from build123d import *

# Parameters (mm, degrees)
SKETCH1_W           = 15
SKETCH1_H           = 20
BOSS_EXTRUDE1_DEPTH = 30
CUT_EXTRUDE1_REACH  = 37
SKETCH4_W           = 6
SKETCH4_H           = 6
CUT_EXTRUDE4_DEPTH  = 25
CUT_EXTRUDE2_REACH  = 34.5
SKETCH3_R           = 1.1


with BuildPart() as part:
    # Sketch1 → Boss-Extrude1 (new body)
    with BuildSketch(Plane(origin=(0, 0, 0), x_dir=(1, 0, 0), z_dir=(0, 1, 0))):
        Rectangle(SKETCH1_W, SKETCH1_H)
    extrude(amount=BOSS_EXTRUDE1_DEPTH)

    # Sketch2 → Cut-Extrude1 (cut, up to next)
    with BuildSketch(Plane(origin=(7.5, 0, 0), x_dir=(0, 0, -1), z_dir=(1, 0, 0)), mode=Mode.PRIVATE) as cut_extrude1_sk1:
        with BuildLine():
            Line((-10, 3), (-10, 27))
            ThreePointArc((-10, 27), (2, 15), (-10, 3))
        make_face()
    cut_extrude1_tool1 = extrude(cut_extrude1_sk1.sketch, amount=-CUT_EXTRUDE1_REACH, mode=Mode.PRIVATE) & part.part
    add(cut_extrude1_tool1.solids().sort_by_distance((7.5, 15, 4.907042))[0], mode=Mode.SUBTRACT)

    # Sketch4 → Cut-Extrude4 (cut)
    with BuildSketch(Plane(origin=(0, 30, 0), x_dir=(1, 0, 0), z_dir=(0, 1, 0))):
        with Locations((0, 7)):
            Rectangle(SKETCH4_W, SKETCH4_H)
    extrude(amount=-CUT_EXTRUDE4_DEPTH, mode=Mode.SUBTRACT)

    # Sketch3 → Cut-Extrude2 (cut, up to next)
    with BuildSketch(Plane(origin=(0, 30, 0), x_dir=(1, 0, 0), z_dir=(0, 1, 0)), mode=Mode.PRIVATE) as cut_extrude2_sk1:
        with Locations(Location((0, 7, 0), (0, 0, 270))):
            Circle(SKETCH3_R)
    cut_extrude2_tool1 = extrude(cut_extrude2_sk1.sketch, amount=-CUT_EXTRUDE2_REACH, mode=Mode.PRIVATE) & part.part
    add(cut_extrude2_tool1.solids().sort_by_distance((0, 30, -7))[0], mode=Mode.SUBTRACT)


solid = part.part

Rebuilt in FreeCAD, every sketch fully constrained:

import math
import FreeCAD as App
import Part
import Sketcher
from FreeCAD import Vector
Q = App.Units.Quantity


def add_polygon(sketch, points):
    """Adds a closed chain of lines whose ends are joined by coincident constraints."""
    first, n = sketch.GeometryCount, len(points)
    for a, b in zip(points, points[1:] + points[:1]):
        sketch.addGeometry(Part.LineSegment(App.Vector(*a, 0), App.Vector(*b, 0)), False)
    for i in range(n):
        sketch.addConstraint(Sketcher.Constraint("Coincident", first + i, 2, first + (i + 1) % n, 1))

doc = App.newDocument("Part")
body = doc.addObject("PartDesign::Body", "Body")

# Sketch on XZ plane
sketch1 = doc.addObject("Sketcher::SketchObject", "Sketch")
body.addObject(sketch1)
sketch1.AttachmentSupport = (doc.XZ_Plane, [""])
sketch1.MapMode = "FlatFace"
add_polygon(sketch1, [(-8, -10), (-8, 10), (8, 10), (8, -10)])  # lines 0-3
sketch1.addConstraint([
    Sketcher.Constraint("Vertical", 0),
    Sketcher.Constraint("Horizontal", 1),
    Sketcher.Constraint("Vertical", 2),
    Sketcher.Constraint("Horizontal", 3),
    Sketcher.Constraint("Symmetric", 0, 2, 2, 2, -1, 1),
    Sketcher.Constraint("DistanceX", 1, 1, 1, 2, Q("15 mm")),
    Sketcher.Constraint("DistanceY", 0, 1, 0, 2, Q("20 mm")),
])
pad1 = doc.addObject("PartDesign::Pad", "Pad")
body.addObject(pad1)
pad1.Profile = sketch1
pad1.Length = 30
pad1.Reversed = True

# Sketch on YZ plane
sketch2 = doc.addObject("Sketcher::SketchObject", "Sketch001")
body.addObject(sketch2)
sketch2.AttachmentSupport = (doc.YZ_Plane, [""])
sketch2.MapMode = "FlatFace"
sketch2.AttachmentOffset = App.Placement(Vector(0, 0, 7.5), App.Rotation())
sketch2.addGeometry([
    Part.LineSegment(Vector(27, 10, 0), Vector(3, 10, 0)),
    Part.ArcOfCircle(Part.Circle(Vector(15, 10, 0), Vector(0, 0, 1), 12), math.radians(180), math.radians(360)),
], False)
sketch2.addConstraint([
    Sketcher.Constraint("Coincident", 0, 1, 1, 2),
    Sketcher.Constraint("Coincident", 1, 1, 0, 2),
    Sketcher.Constraint("Horizontal", 0),
    Sketcher.Constraint("Horizontal", 1, 3, 0, 1),
    Sketcher.Constraint("Radius", 1, Q("12 mm")),
    Sketcher.Constraint("DistanceX", -1, 1, 1, 3, Q("15 mm")),
    Sketcher.Constraint("DistanceY", -1, 1, 1, 3, Q("10 mm")),
])
pocket1 = doc.addObject("PartDesign::Pocket", "Pocket")
body.addObject(pocket1)
pocket1.Profile = sketch2
pocket1.Type = "UpToFirst"

# Sketch on XZ plane
sketch3 = doc.addObject("Sketcher::SketchObject", "Sketch002")
body.addObject(sketch3)
sketch3.AttachmentSupport = (doc.XZ_Plane, [""])
sketch3.MapMode = "FlatFace"
sketch3.AttachmentOffset = App.Placement(Vector(0, 0, -30), App.Rotation())
add_polygon(sketch3, [(-3, -10), (-3, -4), (3, -4), (3, -10)])  # lines 0-3
sketch3.addConstraint([
    Sketcher.Constraint("Vertical", 0),
    Sketcher.Constraint("Horizontal", 1),
    Sketcher.Constraint("Vertical", 2),
    Sketcher.Constraint("Horizontal", 3),
    Sketcher.Constraint("Equal", 3, 0),
    Sketcher.Constraint("DistanceX", 1, 1, 1, 2, Q("6 mm")),
    Sketcher.Constraint("DistanceX", 0, 2, -1, 1, Q("3 mm")),
    Sketcher.Constraint("DistanceY", 0, 2, -1, 1, Q("4 mm")),
])
pocket2 = doc.addObject("PartDesign::Pocket", "Pocket001")
body.addObject(pocket2)
pocket2.Profile = sketch3
pocket2.Length = 25
pocket2.Reversed = True

# Sketch on XZ plane
sketch4 = doc.addObject("Sketcher::SketchObject", "Sketch003")
body.addObject(sketch4)
sketch4.AttachmentSupport = (doc.XZ_Plane, [""])
sketch4.MapMode = "FlatFace"
sketch4.AttachmentOffset = App.Placement(Vector(0, 0, -30), App.Rotation())
sketch4.addGeometry(Part.Circle(Vector(0, -7, 0), Vector(0, 0, 1), 1.1), False)
sketch4.addConstraint([
    Sketcher.Constraint("PointOnObject", 0, 3, -2),
    Sketcher.Constraint("Diameter", 0, Q("2.2 mm")),
    Sketcher.Constraint("DistanceY", 0, 3, -1, 1, Q("7 mm")),
])
pocket3 = doc.addObject("PartDesign::Pocket", "Pocket002")
body.addObject(pocket3)
pocket3.Profile = sketch4
pocket3.Length = 30
pocket3.Reversed = True

doc.recompute()
